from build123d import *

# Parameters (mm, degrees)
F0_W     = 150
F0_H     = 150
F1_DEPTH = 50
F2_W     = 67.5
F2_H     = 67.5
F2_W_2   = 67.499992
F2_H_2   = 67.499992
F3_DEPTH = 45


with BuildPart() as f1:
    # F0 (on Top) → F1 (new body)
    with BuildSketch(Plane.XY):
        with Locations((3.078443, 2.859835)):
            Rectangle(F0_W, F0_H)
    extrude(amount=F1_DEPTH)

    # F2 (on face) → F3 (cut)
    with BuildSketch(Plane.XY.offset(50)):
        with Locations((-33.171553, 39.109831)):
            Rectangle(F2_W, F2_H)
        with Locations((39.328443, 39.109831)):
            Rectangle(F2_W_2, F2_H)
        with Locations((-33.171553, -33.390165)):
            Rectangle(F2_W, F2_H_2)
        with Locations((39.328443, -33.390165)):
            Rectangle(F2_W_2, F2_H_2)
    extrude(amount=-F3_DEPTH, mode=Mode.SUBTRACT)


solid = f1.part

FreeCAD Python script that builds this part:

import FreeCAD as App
import Part
import Sketcher


def add_polygon(sketch, points):
    """Adds a closed chain of lines whose ends are joined by coincident constraints."""
    first, n = sketch.GeometryCount, len(points)
    for a, b in zip(points, points[1:] + points[:1]):
        sketch.addGeometry(Part.LineSegment(App.Vector(*a, 0), App.Vector(*b, 0)), False)
    for i in range(n):
        sketch.addConstraint(Sketcher.Constraint("Coincident", first + i, 2, first + (i + 1) % n, 1))

doc = App.newDocument("Part")
body = doc.addObject("PartDesign::Body", "Body")

# Sketch on XY plane
sketch1 = body.newObject("Sketcher::SketchObject", "Sketch")
sketch1.AttachmentSupport = (doc.getObject("XY_Plane"), [""])
sketch1.MapMode = "FlatFace"
add_polygon(sketch1, [(-72, 78), (-72, -72), (78, -72), (78, 78)])  # lines 0-3
sketch1.addConstraint(Sketcher.Constraint("Vertical", 0))
sketch1.addConstraint(Sketcher.Constraint("Horizontal", 1))
sketch1.addConstraint(Sketcher.Constraint("Vertical", 2))
sketch1.addConstraint(Sketcher.Constraint("Horizontal", 3))
sketch1.addConstraint(Sketcher.Constraint("Equal", 3, 0))
sketch1.addConstraint(Sketcher.Constraint("DistanceX", 1, 1, 1, 2, 150.0))
sketch1.addConstraint(Sketcher.Constraint("DistanceX", 0, 2, -1, 1, 71.921557))
sketch1.addConstraint(Sketcher.Constraint("DistanceY", 0, 2, -1, 1, 72.140165))
pad1 = body.newObject("PartDesign::Pad", "Pad")
pad1.Profile = sketch1
pad1.Length = 50

# Sketch on XY plane
sketch2 = body.newObject("Sketcher::SketchObject", "Sketch001")
sketch2.AttachmentSupport = (doc.getObject("XY_Plane"), [""])
sketch2.MapMode = "FlatFace"
sketch2.AttachmentOffset = App.Placement(App.Vector(0, 0, 50), App.Rotation())
add_polygon(sketch2, [(-67, 73), (-67, 5), (1, 5), (1, 73)])  # lines 0-3
add_polygon(sketch2, [(6, 73), (6, 5), (73, 5), (73, 73)])  # lines 4-7
add_polygon(sketch2, [(-67, 0), (-67, -67), (1, -67), (1, 0)])  # lines 8-11
add_polygon(sketch2, [(6, 0), (6, -67), (73, -67), (73, 0)])  # lines 12-15
sketch2.addConstraint(Sketcher.Constraint("Vertical", 0))
sketch2.addConstraint(Sketcher.Constraint("Horizontal", 1))
sketch2.addConstraint(Sketcher.Constraint("Vertical", 2))
sketch2.addConstraint(Sketcher.Constraint("Horizontal", 3))
sketch2.addConstraint(Sketcher.Constraint("Vertical", 4))
sketch2.addConstraint(Sketcher.Constraint("Horizontal", 5))
sketch2.addConstraint(Sketcher.Constraint("Vertical", 6))
sketch2.addConstraint(Sketcher.Constraint("Horizontal", 7))
sketch2.addConstraint(Sketcher.Constraint("Vertical", 8))
sketch2.addConstraint(Sketcher.Constraint("Horizontal", 9))
sketch2.addConstraint(Sketcher.Constraint("Vertical", 10))
sketch2.addConstraint(Sketcher.Constraint("Horizontal", 11))
sketch2.addConstraint(Sketcher.Constraint("Vertical", 12))
sketch2.addConstraint(Sketcher.Constraint("Horizontal", 13))
sketch2.addConstraint(Sketcher.Constraint("Vertical", 14))
sketch2.addConstraint(Sketcher.Constraint("Horizontal", 15))
sketch2.addConstraint(Sketcher.Constraint("Horizontal", 1, 2, 4, 2))
sketch2.addConstraint(Sketcher.Constraint("Horizontal", 3, 2, 6, 2))
sketch2.addConstraint(Sketcher.Constraint("Horizontal", 9, 2, 12, 2))
sketch2.addConstraint(Sketcher.Constraint("Horizontal", 11, 2, 14, 2))
sketch2.addConstraint(Sketcher.Constraint("Vertical", 3, 2, 8, 2))
sketch2.addConstraint(Sketcher.Constraint("Vertical", 2, 2, 9, 2))
sketch2.addConstraint(Sketcher.Constraint("Vertical", 7, 2, 12, 2))
sketch2.addConstraint(Sketcher.Constraint("Vertical", 6, 2, 13, 2))
sketch2.addConstraint(Sketcher.Constraint("Equal", 11, 0))
sketch2.addConstraint(Sketcher.Constraint("Equal", 15, 8))
sketch2.addConstraint(Sketcher.Constraint("DistanceX", 1, 1, 1, 2, 67.5))
sketch2.addConstraint(Sketcher.Constraint("DistanceX", 1, 2, 4, 2, 5.0))
sketch2.addConstraint(Sketcher.Constraint("DistanceY", 10, 2, 1, 2, 5.0))
sketch2.addConstraint(Sketcher.Constraint("DistanceX", 5, 1, 5, 2, 67.499992))
sketch2.addConstraint(Sketcher.Constraint("DistanceY", -1, 1, 0, 2, 5.359831))
sketch2.addConstraint(Sketcher.Constraint("DistanceX", -1, 1, 5, 2, 73.078439))
pocket1 = body.newObject("PartDesign::Pocket", "Pocket")
pocket1.Profile = sketch2
pocket1.Length = 45

doc.recompute()
